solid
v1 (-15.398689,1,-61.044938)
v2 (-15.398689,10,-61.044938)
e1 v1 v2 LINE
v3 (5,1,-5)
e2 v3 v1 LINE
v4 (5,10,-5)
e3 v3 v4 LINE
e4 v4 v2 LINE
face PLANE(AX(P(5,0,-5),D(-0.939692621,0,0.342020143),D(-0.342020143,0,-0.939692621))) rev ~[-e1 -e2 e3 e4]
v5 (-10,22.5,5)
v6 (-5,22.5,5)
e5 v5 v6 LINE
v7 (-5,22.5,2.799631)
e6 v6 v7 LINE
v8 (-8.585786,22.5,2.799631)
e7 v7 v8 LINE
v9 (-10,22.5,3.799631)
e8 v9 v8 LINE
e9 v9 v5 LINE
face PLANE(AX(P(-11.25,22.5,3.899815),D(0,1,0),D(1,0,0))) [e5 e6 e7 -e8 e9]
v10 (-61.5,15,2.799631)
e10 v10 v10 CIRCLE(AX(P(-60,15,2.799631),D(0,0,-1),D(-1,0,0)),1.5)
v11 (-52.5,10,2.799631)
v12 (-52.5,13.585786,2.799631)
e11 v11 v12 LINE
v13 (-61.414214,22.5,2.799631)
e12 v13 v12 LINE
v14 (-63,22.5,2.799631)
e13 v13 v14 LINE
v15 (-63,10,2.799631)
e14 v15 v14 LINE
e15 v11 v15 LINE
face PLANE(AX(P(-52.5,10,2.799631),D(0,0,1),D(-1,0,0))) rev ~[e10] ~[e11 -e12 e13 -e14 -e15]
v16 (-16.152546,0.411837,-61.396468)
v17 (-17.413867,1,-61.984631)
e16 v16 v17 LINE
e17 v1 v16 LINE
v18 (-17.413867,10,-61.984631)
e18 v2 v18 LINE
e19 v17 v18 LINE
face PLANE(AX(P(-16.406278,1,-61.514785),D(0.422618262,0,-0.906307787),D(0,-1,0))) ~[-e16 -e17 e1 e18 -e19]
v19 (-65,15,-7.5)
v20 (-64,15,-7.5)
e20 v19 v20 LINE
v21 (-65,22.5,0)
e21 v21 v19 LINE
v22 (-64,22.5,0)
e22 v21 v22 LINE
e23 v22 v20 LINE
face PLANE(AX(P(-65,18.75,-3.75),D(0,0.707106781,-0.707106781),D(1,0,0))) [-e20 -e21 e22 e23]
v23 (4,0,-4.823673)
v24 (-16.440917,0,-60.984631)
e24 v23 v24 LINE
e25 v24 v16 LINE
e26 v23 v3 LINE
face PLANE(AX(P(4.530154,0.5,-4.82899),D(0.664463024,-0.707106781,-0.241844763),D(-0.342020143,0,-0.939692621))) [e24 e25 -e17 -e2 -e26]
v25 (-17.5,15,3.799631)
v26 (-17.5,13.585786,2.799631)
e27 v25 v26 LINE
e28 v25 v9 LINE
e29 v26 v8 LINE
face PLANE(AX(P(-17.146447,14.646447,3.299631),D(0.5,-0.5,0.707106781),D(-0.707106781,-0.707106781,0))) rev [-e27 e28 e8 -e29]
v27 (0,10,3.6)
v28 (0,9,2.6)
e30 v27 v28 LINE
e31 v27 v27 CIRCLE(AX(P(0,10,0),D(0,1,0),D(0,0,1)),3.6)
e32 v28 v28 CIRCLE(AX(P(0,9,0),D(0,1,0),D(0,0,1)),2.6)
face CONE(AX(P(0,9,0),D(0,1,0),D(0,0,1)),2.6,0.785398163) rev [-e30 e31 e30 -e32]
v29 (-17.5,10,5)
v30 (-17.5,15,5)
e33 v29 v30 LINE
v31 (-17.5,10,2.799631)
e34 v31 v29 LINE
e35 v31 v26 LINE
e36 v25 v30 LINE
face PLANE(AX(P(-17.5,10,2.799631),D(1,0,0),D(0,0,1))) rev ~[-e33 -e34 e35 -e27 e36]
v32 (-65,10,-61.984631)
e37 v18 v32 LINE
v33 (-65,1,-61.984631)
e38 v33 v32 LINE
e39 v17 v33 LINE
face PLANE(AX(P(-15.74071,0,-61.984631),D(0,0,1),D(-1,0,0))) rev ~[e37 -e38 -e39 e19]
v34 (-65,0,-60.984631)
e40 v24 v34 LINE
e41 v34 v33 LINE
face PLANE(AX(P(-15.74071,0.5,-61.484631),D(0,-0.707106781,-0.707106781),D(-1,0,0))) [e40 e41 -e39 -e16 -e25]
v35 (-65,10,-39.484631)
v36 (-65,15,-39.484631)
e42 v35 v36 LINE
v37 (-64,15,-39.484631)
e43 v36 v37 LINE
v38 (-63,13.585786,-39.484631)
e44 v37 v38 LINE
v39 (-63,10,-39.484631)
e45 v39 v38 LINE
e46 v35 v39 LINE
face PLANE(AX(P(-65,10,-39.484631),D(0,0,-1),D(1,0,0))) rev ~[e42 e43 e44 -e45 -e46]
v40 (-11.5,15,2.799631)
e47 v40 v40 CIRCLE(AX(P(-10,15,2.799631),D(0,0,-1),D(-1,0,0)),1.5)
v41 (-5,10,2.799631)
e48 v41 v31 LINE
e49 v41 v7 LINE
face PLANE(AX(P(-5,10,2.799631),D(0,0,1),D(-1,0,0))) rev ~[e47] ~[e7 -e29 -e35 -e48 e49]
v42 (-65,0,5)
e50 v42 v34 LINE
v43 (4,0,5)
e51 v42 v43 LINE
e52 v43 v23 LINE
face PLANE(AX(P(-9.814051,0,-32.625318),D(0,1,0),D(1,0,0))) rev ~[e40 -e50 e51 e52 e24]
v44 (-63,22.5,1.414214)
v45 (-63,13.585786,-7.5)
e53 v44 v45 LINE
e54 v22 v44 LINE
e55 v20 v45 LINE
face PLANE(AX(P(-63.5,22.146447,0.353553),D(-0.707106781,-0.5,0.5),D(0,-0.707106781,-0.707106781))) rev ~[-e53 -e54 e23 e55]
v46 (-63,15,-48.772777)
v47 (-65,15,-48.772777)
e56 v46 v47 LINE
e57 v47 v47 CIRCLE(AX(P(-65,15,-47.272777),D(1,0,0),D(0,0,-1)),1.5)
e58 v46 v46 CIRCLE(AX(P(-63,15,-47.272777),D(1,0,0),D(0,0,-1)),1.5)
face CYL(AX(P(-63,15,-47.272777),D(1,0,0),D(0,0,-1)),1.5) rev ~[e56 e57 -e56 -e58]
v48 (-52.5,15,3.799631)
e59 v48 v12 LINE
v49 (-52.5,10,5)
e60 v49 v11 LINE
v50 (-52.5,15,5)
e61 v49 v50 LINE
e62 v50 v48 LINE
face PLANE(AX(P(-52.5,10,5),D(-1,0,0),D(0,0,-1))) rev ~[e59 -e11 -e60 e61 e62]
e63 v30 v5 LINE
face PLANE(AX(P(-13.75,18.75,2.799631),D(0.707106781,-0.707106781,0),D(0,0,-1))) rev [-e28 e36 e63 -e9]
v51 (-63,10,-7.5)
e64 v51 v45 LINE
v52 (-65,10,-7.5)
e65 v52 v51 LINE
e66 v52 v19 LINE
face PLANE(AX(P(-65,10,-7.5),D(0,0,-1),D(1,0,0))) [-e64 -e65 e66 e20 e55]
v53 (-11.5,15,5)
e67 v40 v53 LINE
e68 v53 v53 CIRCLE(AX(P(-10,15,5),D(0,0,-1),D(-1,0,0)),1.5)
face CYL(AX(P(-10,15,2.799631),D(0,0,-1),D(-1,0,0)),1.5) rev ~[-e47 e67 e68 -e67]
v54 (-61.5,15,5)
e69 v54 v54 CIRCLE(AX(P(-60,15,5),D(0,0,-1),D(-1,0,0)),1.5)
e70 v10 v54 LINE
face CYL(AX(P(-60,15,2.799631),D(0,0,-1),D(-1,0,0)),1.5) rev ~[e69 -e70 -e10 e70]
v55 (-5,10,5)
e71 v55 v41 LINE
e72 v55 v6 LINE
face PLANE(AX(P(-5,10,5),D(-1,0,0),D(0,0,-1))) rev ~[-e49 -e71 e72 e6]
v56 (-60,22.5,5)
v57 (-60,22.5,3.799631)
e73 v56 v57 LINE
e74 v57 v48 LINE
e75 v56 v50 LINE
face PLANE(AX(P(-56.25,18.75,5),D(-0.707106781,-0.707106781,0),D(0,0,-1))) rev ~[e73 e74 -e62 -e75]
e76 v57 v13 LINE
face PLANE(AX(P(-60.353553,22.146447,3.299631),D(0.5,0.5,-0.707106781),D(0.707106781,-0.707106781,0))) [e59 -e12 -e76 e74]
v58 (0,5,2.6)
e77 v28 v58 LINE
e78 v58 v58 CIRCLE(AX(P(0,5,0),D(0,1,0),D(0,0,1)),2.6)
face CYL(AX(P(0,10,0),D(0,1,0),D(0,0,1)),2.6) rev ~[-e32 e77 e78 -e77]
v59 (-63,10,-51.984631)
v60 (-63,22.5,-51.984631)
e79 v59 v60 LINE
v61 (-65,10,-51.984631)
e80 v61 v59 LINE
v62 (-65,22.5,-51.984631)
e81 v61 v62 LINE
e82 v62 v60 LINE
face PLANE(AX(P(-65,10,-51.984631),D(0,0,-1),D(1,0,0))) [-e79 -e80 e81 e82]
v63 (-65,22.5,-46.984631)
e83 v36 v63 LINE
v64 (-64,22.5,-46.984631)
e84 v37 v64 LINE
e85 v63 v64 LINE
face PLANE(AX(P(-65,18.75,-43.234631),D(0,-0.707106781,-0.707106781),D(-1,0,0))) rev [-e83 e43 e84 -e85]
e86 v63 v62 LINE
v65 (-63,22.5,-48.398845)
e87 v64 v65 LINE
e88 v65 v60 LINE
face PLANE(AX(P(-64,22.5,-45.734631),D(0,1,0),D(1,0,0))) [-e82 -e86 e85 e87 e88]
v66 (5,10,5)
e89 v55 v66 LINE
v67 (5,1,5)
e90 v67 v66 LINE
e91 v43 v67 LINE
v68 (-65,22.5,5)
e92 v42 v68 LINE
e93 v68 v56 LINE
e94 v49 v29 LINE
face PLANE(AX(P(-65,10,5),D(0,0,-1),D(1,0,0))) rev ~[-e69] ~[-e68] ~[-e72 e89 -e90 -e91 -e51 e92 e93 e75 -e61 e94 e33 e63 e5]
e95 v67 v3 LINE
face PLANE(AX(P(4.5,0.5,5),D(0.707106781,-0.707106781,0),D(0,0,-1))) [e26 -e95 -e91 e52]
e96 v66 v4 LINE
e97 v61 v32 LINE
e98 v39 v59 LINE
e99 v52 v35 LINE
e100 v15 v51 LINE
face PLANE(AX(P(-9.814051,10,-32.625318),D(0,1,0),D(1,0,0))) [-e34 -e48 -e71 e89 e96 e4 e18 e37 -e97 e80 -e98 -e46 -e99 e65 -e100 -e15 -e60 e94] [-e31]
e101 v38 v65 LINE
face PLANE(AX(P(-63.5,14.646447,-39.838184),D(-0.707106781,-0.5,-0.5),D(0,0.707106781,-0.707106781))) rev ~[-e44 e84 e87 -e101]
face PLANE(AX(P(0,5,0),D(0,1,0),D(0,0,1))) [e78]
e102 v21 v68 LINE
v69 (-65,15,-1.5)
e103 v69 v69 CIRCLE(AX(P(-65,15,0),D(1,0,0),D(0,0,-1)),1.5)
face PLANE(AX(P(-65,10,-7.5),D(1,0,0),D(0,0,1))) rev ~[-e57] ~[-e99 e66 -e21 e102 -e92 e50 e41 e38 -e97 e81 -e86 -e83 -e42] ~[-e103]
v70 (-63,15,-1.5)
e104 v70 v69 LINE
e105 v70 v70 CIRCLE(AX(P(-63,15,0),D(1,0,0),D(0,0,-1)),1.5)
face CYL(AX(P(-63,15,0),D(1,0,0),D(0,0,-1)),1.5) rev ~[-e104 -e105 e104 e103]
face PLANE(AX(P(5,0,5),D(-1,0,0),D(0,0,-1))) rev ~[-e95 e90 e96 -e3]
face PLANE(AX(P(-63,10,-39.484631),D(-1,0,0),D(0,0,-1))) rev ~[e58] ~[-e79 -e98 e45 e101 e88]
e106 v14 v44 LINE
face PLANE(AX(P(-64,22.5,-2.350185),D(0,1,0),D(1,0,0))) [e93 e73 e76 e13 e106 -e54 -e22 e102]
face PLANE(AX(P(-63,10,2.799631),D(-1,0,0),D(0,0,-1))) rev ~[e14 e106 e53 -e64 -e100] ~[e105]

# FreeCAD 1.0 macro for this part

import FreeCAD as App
import Part
import Sketcher

V = App.Vector
Q = App.Units.Quantity


def edges_at(feature, points):
    """Names of the edges that pass closest to the given points."""
    edges = feature.Shape.Edges
    near = lambda p: min(range(len(edges)), key=lambda i: edges[i].distToShape(Part.Vertex(*p))[0])
    return sorted({f"Edge{near(p) + 1}" for p in points})

doc = App.newDocument("Part")
body = doc.addObject("PartDesign::Body", "Body")

# Sketch on XZ plane
sketch1 = body.newObject("Sketcher::SketchObject", "Sketch")
sketch1.AttachmentSupport = (doc.getObject("XZ_Plane"), [""])
sketch1.MapMode = "FlatFace"
sketch1.addGeometry(Part.LineSegment(V(-16, -62, 0), V(-65, -62, 0)), False)
sketch1.addGeometry(Part.LineSegment(V(-65, -62, 0), V(-65, 5, 0)), False)
sketch1.addGeometry(Part.LineSegment(V(-65, 5, 0), V(5, 5, 0)), False)
sketch1.addGeometry(Part.LineSegment(V(5, 5, 0), V(5, -5, 0)), False)
sketch1.addGeometry(Part.LineSegment(V(5, -5, 0), V(-16, -62, 0)), False)
sketch1.addConstraint(Sketcher.Constraint("Coincident", 0, 2, 1, 1))
sketch1.addConstraint(Sketcher.Constraint("Coincident", 1, 2, 2, 1))
sketch1.addConstraint(Sketcher.Constraint("Coincident", 2, 2, 3, 1))
sketch1.addConstraint(Sketcher.Constraint("Coincident", 3, 2, 4, 1))
sketch1.addConstraint(Sketcher.Constraint("Coincident", 4, 2, 0, 1))
sketch1.addConstraint(Sketcher.Constraint("Horizontal", 0))
sketch1.addConstraint(Sketcher.Constraint("Vertical", 1))
sketch1.addConstraint(Sketcher.Constraint("Horizontal", 2))
sketch1.addConstraint(Sketcher.Constraint("Vertical", 3))
sketch1.addConstraint(Sketcher.Constraint("DistanceX", 2, 1, 2, 2, 70.0))
sketch1.addConstraint(Sketcher.Constraint("DistanceY", 3, 2, 3, 1, 10.0))
sketch1.addConstraint(Sketcher.Constraint("Angle", 4, Q("-110 deg")))
sketch1.addConstraint(Sketcher.Constraint("DistanceX", 0, 2, -1, 1, 65.0))
sketch1.addConstraint(Sketcher.Constraint("DistanceY", -1, 1, 1, 2, 5.0))
sketch1.addConstraint(Sketcher.Constraint("DistanceX", 0, 2, 0, 1, 49.25929))
pad1 = body.newObject("PartDesign::Pad", "Pad")
pad1.Profile = sketch1
pad1.Length = 10
pad1.Reversed = True

# Sketch on XZ plane
sketch2 = body.newObject("Sketcher::SketchObject", "Sketch001")
sketch2.AttachmentSupport = (doc.getObject("XZ_Plane"), [""])
sketch2.MapMode = "FlatFace"
sketch2.AttachmentOffset = App.Placement(V(0, 0, -10), App.Rotation())
sketch2.addGeometry(Part.LineSegment(V(-65, -7.5, 0), V(-65, 5, 0)), False)
sketch2.addGeometry(Part.LineSegment(V(-65, 5, 0), V(-52.5, 5, 0)), False)
sketch2.addGeometry(Part.LineSegment(V(-52.5, 5, 0), V(-52.5, 2.8, 0)), False)
sketch2.addGeometry(Part.LineSegment(V(-52.5, 2.8, 0), V(-63, 2.8, 0)), False)
sketch2.addGeometry(Part.LineSegment(V(-63, 2.8, 0), V(-63, -7.5, 0)), False)
sketch2.addGeometry(Part.LineSegment(V(-63, -7.5, 0), V(-65, -7.5, 0)), False)
sketch2.addGeometry(Part.LineSegment(V(-17.5, 2.8, 0), V(-17.5, 5, 0)), False)
sketch2.addGeometry(Part.LineSegment(V(-17.5, 5, 0), V(-5, 5, 0)), False)
sketch2.addGeometry(Part.LineSegment(V(-5, 5, 0), V(-5, 2.8, 0)), False)
sketch2.addGeometry(Part.LineSegment(V(-5, 2.8, 0), V(-17.5, 2.8, 0)), False)
sketch2.addGeometry(Part.LineSegment(V(-65, -52, 0), V(-65, -39.5, 0)), False)
sketch2.addGeometry(Part.LineSegment(V(-65, -39.5, 0), V(-63, -39.5, 0)), False)
sketch2.addGeometry(Part.LineSegment(V(-63, -39.5, 0), V(-63, -52, 0)), False)
sketch2.addGeometry(Part.LineSegment(V(-63, -52, 0), V(-65, -52, 0)), False)
sketch2.addConstraint(Sketcher.Constraint("Coincident", 0, 2, 1, 1))
sketch2.addConstraint(Sketcher.Constraint("Coincident", 1, 2, 2, 1))
sketch2.addConstraint(Sketcher.Constraint("Coincident", 2, 2, 3, 1))
sketch2.addConstraint(Sketcher.Constraint("Coincident", 3, 2, 4, 1))
sketch2.addConstraint(Sketcher.Constraint("Coincident", 4, 2, 5, 1))
sketch2.addConstraint(Sketcher.Constraint("Coincident", 5, 2, 0, 1))
sketch2.addConstraint(Sketcher.Constraint("Coincident", 6, 2, 7, 1))
sketch2.addConstraint(Sketcher.Constraint("Coincident", 7, 2, 8, 1))
sketch2.addConstraint(Sketcher.Constraint("Coincident", 8, 2, 9, 1))
sketch2.addConstraint(Sketcher.Constraint("Coincident", 9, 2, 6, 1))
sketch2.addConstraint(Sketcher.Constraint("Coincident", 10, 2, 11, 1))
sketch2.addConstraint(Sketcher.Constraint("Coincident", 11, 2, 12, 1))
sketch2.addConstraint(Sketcher.Constraint("Coincident", 12, 2, 13, 1))
sketch2.addConstraint(Sketcher.Constraint("Coincident", 13, 2, 10, 1))
sketch2.addConstraint(Sketcher.Constraint("Vertical", 0))
sketch2.addConstraint(Sketcher.Constraint("Horizontal", 1))
sketch2.addConstraint(Sketcher.Constraint("Vertical", 2))
sketch2.addConstraint(Sketcher.Constraint("Horizontal", 3))
sketch2.addConstraint(Sketcher.Constraint("Vertical", 4))
sketch2.addConstraint(Sketcher.Constraint("Horizontal", 5))
sketch2.addConstraint(Sketcher.Constraint("Vertical", 6))
sketch2.addConstraint(Sketcher.Constraint("Horizontal", 7))
sketch2.addConstraint(Sketcher.Constraint("Vertical", 8))
sketch2.addConstraint(Sketcher.Constraint("Horizontal", 9))
sketch2.addConstraint(Sketcher.Constraint("Vertical", 10))
sketch2.addConstraint(Sketcher.Constraint("Horizontal", 11))
sketch2.addConstraint(Sketcher.Constraint("Vertical", 12))
sketch2.addConstraint(Sketcher.Constraint("Horizontal", 13))
sketch2.addConstraint(Sketcher.Constraint("Horizontal", 1, 2, 6, 2))
sketch2.addConstraint(Sketcher.Constraint("Horizontal", 3, 2, 8, 2))
sketch2.addConstraint(Sketcher.Constraint("Vertical", 5, 2, 10, 2))
sketch2.addConstraint(Sketcher.Constraint("Vertical", 4, 2, 11, 2))
sketch2.addConstraint(Sketcher.Constraint("Equal", 1, 7))
sketch2.addConstraint(Sketcher.Constraint("Equal", 9, 0))
sketch2.addConstraint(Sketcher.Constraint("Equal", 0, 10))
sketch2.addConstraint(Sketcher.Constraint("DistanceX", 5, 2, 5, 1, 2.0))
sketch2.addConstraint(Sketcher.Constraint("DistanceX", 1, 1, 1, 2, 12.5))
sketch2.addConstraint(Sketcher.Constraint("DistanceX", 0, 2, -1, 1, 65.0))
sketch2.addConstraint(Sketcher.Constraint("DistanceY", -1, 1, 0, 2, 5.0))
sketch2.addConstraint(Sketcher.Constraint("DistanceX", 7, 2, -1, 1, 5.0))
sketch2.addConstraint(Sketcher.Constraint("DistanceY", 2, 2, 2, 1, 2.200369))
sketch2.addConstraint(Sketcher.Constraint("DistanceY", 10, 2, -1, 1, 39.484631))
pad2 = body.newObject("PartDesign::Pad", "Pad001")
pad2.Profile = sketch2
pad2.Length = 12.5
pad2.Reversed = True

# Sketch on XY plane
sketch3 = body.newObject("Sketcher::SketchObject", "Sketch002")
sketch3.AttachmentSupport = (doc.getObject("XY_Plane"), [""])
sketch3.MapMode = "FlatFace"
sketch3.AttachmentOffset = App.Placement(V(0, 0, 2.799631), App.Rotation())
sketch3.addGeometry(Part.Circle(V(-10, 15, 0), V(0, 0, 1), 1.5), False)
sketch3.addGeometry(Part.Circle(V(-60, 15, 0), V(0, 0, 1), 1.5), False)
sketch3.addConstraint(Sketcher.Constraint("Equal", 0, 1))
sketch3.addConstraint(Sketcher.Constraint("Horizontal", 0, 3, 1, 3))
sketch3.addConstraint(Sketcher.Constraint("Diameter", 0, 3.0))
sketch3.addConstraint(Sketcher.Constraint("DistanceX", 0, 3, -1, 1, 10.0))
sketch3.addConstraint(Sketcher.Constraint("DistanceY", -1, 1, 0, 3, 15.0))
sketch3.addConstraint(Sketcher.Constraint("DistanceX", 1, 3, -1, 1, 60.0))
pocket1 = body.newObject("PartDesign::Pocket", "Pocket")
pocket1.Profile = sketch3
pocket1.Length = 2.200369
pocket1.Reversed = True
doc.recompute()

chamfer = body.newObject("PartDesign::Chamfer", "Chamfer")
chamfer.Base = (pocket1, edges_at(pocket1, [(-52.5, 22.5, 3.9), (-17.5, 22.5, 3.9)]))
chamfer.Size = 7.5
doc.recompute()

chamfer2 = body.newObject("PartDesign::Chamfer", "Chamfer001")
chamfer2.Base = (chamfer, edges_at(chamfer, [(-56.25, 18.75, 2.8), (-13.75, 18.75, 2.8)]))
chamfer2.Size = 1

# Sketch on YZ plane
sketch4 = body.newObject("Sketcher::SketchObject", "Sketch003")
sketch4.AttachmentSupport = (doc.getObject("YZ_Plane"), [""])
sketch4.MapMode = "FlatFace"
sketch4.AttachmentOffset = App.Placement(V(0, 0, -63), App.Rotation())
sketch4.addGeometry(Part.Circle(V(15, 0, 0), V(0, 0, 1), 1.5), False)
sketch4.addGeometry(Part.Circle(V(15, -47.3, 0), V(0, 0, 1), 1.5), False)
sketch4.addConstraint(Sketcher.Constraint("Equal", 0, 1))
sketch4.addConstraint(Sketcher.Constraint("PointOnObject", 0, 3, -1))
sketch4.addConstraint(Sketcher.Constraint("Vertical", 0, 3, 1, 3))
sketch4.addConstraint(Sketcher.Constraint("Diameter", 0, 3.0))
sketch4.addConstraint(Sketcher.Constraint("DistanceX", -1, 1, 0, 3, 15.0))
sketch4.addConstraint(Sketcher.Constraint("DistanceY", 1, 3, -1, 1, 47.272777))
pocket2 = body.newObject("PartDesign::Pocket", "Pocket001")
pocket2.Profile = sketch4
pocket2.Length = 2
doc.recompute()

chamfer3 = body.newObject("PartDesign::Chamfer", "Chamfer002")
chamfer3.Base = (pocket2, edges_at(pocket2, [(-64, 22.5, -7.5), (-64, 22.5, -39.485)]))
chamfer3.Size = 7.5
doc.recompute()

chamfer4 = body.newObject("PartDesign::Chamfer", "Chamfer003")
chamfer4.Base = (chamfer3, edges_at(chamfer3, [(-63, 18.75, -43.235), (-63, 18.75, -3.75)]))
chamfer4.Size = 1
doc.recompute()

chamfer5 = body.newObject("PartDesign::Chamfer", "Chamfer004")
chamfer5.Base = (chamfer4, edges_at(chamfer4, [(-5.37, 0, -33.492), (5, 0, 0), (-40.37, 0, -61.985)]))
chamfer5.Size = 1

# Sketch on XZ plane
sketch5 = body.newObject("Sketcher::SketchObject", "Sketch004")
sketch5.AttachmentSupport = (doc.getObject("XZ_Plane"), [""])
sketch5.MapMode = "FlatFace"
sketch5.AttachmentOffset = App.Placement(V(0, 0, -10), App.Rotation())
sketch5.addGeometry(Part.Circle(V(0, 0, 0), V(0, 0, 1), 2.6), False)
sketch5.addConstraint(Sketcher.Constraint("Coincident", 0, 3, -1, 1))
sketch5.addConstraint(Sketcher.Constraint("Diameter", 0, 5.2))
pocket3 = body.newObject("PartDesign::Pocket", "Pocket002")
pocket3.Profile = sketch5
pocket3.Length = 5
pocket3.Reversed = True
doc.recompute()

chamfer6 = body.newObject("PartDesign::Chamfer", "Chamfer005")
chamfer6.Base = (pocket3, edges_at(pocket3, [(0, 10, -2.6)]))
chamfer6.Size = 1
doc.recompute()

chamfer7 = body.newObject("PartDesign::Chamfer", "Chamfer006")
chamfer7.Base = (chamfer6, edges_at(chamfer6, [(-15.741, 5.5, -61.985)]))
chamfer7.ChamferType = "Two distances"
chamfer7.Size = 1
chamfer7.Size2 = 1.673157

doc.recompute()
